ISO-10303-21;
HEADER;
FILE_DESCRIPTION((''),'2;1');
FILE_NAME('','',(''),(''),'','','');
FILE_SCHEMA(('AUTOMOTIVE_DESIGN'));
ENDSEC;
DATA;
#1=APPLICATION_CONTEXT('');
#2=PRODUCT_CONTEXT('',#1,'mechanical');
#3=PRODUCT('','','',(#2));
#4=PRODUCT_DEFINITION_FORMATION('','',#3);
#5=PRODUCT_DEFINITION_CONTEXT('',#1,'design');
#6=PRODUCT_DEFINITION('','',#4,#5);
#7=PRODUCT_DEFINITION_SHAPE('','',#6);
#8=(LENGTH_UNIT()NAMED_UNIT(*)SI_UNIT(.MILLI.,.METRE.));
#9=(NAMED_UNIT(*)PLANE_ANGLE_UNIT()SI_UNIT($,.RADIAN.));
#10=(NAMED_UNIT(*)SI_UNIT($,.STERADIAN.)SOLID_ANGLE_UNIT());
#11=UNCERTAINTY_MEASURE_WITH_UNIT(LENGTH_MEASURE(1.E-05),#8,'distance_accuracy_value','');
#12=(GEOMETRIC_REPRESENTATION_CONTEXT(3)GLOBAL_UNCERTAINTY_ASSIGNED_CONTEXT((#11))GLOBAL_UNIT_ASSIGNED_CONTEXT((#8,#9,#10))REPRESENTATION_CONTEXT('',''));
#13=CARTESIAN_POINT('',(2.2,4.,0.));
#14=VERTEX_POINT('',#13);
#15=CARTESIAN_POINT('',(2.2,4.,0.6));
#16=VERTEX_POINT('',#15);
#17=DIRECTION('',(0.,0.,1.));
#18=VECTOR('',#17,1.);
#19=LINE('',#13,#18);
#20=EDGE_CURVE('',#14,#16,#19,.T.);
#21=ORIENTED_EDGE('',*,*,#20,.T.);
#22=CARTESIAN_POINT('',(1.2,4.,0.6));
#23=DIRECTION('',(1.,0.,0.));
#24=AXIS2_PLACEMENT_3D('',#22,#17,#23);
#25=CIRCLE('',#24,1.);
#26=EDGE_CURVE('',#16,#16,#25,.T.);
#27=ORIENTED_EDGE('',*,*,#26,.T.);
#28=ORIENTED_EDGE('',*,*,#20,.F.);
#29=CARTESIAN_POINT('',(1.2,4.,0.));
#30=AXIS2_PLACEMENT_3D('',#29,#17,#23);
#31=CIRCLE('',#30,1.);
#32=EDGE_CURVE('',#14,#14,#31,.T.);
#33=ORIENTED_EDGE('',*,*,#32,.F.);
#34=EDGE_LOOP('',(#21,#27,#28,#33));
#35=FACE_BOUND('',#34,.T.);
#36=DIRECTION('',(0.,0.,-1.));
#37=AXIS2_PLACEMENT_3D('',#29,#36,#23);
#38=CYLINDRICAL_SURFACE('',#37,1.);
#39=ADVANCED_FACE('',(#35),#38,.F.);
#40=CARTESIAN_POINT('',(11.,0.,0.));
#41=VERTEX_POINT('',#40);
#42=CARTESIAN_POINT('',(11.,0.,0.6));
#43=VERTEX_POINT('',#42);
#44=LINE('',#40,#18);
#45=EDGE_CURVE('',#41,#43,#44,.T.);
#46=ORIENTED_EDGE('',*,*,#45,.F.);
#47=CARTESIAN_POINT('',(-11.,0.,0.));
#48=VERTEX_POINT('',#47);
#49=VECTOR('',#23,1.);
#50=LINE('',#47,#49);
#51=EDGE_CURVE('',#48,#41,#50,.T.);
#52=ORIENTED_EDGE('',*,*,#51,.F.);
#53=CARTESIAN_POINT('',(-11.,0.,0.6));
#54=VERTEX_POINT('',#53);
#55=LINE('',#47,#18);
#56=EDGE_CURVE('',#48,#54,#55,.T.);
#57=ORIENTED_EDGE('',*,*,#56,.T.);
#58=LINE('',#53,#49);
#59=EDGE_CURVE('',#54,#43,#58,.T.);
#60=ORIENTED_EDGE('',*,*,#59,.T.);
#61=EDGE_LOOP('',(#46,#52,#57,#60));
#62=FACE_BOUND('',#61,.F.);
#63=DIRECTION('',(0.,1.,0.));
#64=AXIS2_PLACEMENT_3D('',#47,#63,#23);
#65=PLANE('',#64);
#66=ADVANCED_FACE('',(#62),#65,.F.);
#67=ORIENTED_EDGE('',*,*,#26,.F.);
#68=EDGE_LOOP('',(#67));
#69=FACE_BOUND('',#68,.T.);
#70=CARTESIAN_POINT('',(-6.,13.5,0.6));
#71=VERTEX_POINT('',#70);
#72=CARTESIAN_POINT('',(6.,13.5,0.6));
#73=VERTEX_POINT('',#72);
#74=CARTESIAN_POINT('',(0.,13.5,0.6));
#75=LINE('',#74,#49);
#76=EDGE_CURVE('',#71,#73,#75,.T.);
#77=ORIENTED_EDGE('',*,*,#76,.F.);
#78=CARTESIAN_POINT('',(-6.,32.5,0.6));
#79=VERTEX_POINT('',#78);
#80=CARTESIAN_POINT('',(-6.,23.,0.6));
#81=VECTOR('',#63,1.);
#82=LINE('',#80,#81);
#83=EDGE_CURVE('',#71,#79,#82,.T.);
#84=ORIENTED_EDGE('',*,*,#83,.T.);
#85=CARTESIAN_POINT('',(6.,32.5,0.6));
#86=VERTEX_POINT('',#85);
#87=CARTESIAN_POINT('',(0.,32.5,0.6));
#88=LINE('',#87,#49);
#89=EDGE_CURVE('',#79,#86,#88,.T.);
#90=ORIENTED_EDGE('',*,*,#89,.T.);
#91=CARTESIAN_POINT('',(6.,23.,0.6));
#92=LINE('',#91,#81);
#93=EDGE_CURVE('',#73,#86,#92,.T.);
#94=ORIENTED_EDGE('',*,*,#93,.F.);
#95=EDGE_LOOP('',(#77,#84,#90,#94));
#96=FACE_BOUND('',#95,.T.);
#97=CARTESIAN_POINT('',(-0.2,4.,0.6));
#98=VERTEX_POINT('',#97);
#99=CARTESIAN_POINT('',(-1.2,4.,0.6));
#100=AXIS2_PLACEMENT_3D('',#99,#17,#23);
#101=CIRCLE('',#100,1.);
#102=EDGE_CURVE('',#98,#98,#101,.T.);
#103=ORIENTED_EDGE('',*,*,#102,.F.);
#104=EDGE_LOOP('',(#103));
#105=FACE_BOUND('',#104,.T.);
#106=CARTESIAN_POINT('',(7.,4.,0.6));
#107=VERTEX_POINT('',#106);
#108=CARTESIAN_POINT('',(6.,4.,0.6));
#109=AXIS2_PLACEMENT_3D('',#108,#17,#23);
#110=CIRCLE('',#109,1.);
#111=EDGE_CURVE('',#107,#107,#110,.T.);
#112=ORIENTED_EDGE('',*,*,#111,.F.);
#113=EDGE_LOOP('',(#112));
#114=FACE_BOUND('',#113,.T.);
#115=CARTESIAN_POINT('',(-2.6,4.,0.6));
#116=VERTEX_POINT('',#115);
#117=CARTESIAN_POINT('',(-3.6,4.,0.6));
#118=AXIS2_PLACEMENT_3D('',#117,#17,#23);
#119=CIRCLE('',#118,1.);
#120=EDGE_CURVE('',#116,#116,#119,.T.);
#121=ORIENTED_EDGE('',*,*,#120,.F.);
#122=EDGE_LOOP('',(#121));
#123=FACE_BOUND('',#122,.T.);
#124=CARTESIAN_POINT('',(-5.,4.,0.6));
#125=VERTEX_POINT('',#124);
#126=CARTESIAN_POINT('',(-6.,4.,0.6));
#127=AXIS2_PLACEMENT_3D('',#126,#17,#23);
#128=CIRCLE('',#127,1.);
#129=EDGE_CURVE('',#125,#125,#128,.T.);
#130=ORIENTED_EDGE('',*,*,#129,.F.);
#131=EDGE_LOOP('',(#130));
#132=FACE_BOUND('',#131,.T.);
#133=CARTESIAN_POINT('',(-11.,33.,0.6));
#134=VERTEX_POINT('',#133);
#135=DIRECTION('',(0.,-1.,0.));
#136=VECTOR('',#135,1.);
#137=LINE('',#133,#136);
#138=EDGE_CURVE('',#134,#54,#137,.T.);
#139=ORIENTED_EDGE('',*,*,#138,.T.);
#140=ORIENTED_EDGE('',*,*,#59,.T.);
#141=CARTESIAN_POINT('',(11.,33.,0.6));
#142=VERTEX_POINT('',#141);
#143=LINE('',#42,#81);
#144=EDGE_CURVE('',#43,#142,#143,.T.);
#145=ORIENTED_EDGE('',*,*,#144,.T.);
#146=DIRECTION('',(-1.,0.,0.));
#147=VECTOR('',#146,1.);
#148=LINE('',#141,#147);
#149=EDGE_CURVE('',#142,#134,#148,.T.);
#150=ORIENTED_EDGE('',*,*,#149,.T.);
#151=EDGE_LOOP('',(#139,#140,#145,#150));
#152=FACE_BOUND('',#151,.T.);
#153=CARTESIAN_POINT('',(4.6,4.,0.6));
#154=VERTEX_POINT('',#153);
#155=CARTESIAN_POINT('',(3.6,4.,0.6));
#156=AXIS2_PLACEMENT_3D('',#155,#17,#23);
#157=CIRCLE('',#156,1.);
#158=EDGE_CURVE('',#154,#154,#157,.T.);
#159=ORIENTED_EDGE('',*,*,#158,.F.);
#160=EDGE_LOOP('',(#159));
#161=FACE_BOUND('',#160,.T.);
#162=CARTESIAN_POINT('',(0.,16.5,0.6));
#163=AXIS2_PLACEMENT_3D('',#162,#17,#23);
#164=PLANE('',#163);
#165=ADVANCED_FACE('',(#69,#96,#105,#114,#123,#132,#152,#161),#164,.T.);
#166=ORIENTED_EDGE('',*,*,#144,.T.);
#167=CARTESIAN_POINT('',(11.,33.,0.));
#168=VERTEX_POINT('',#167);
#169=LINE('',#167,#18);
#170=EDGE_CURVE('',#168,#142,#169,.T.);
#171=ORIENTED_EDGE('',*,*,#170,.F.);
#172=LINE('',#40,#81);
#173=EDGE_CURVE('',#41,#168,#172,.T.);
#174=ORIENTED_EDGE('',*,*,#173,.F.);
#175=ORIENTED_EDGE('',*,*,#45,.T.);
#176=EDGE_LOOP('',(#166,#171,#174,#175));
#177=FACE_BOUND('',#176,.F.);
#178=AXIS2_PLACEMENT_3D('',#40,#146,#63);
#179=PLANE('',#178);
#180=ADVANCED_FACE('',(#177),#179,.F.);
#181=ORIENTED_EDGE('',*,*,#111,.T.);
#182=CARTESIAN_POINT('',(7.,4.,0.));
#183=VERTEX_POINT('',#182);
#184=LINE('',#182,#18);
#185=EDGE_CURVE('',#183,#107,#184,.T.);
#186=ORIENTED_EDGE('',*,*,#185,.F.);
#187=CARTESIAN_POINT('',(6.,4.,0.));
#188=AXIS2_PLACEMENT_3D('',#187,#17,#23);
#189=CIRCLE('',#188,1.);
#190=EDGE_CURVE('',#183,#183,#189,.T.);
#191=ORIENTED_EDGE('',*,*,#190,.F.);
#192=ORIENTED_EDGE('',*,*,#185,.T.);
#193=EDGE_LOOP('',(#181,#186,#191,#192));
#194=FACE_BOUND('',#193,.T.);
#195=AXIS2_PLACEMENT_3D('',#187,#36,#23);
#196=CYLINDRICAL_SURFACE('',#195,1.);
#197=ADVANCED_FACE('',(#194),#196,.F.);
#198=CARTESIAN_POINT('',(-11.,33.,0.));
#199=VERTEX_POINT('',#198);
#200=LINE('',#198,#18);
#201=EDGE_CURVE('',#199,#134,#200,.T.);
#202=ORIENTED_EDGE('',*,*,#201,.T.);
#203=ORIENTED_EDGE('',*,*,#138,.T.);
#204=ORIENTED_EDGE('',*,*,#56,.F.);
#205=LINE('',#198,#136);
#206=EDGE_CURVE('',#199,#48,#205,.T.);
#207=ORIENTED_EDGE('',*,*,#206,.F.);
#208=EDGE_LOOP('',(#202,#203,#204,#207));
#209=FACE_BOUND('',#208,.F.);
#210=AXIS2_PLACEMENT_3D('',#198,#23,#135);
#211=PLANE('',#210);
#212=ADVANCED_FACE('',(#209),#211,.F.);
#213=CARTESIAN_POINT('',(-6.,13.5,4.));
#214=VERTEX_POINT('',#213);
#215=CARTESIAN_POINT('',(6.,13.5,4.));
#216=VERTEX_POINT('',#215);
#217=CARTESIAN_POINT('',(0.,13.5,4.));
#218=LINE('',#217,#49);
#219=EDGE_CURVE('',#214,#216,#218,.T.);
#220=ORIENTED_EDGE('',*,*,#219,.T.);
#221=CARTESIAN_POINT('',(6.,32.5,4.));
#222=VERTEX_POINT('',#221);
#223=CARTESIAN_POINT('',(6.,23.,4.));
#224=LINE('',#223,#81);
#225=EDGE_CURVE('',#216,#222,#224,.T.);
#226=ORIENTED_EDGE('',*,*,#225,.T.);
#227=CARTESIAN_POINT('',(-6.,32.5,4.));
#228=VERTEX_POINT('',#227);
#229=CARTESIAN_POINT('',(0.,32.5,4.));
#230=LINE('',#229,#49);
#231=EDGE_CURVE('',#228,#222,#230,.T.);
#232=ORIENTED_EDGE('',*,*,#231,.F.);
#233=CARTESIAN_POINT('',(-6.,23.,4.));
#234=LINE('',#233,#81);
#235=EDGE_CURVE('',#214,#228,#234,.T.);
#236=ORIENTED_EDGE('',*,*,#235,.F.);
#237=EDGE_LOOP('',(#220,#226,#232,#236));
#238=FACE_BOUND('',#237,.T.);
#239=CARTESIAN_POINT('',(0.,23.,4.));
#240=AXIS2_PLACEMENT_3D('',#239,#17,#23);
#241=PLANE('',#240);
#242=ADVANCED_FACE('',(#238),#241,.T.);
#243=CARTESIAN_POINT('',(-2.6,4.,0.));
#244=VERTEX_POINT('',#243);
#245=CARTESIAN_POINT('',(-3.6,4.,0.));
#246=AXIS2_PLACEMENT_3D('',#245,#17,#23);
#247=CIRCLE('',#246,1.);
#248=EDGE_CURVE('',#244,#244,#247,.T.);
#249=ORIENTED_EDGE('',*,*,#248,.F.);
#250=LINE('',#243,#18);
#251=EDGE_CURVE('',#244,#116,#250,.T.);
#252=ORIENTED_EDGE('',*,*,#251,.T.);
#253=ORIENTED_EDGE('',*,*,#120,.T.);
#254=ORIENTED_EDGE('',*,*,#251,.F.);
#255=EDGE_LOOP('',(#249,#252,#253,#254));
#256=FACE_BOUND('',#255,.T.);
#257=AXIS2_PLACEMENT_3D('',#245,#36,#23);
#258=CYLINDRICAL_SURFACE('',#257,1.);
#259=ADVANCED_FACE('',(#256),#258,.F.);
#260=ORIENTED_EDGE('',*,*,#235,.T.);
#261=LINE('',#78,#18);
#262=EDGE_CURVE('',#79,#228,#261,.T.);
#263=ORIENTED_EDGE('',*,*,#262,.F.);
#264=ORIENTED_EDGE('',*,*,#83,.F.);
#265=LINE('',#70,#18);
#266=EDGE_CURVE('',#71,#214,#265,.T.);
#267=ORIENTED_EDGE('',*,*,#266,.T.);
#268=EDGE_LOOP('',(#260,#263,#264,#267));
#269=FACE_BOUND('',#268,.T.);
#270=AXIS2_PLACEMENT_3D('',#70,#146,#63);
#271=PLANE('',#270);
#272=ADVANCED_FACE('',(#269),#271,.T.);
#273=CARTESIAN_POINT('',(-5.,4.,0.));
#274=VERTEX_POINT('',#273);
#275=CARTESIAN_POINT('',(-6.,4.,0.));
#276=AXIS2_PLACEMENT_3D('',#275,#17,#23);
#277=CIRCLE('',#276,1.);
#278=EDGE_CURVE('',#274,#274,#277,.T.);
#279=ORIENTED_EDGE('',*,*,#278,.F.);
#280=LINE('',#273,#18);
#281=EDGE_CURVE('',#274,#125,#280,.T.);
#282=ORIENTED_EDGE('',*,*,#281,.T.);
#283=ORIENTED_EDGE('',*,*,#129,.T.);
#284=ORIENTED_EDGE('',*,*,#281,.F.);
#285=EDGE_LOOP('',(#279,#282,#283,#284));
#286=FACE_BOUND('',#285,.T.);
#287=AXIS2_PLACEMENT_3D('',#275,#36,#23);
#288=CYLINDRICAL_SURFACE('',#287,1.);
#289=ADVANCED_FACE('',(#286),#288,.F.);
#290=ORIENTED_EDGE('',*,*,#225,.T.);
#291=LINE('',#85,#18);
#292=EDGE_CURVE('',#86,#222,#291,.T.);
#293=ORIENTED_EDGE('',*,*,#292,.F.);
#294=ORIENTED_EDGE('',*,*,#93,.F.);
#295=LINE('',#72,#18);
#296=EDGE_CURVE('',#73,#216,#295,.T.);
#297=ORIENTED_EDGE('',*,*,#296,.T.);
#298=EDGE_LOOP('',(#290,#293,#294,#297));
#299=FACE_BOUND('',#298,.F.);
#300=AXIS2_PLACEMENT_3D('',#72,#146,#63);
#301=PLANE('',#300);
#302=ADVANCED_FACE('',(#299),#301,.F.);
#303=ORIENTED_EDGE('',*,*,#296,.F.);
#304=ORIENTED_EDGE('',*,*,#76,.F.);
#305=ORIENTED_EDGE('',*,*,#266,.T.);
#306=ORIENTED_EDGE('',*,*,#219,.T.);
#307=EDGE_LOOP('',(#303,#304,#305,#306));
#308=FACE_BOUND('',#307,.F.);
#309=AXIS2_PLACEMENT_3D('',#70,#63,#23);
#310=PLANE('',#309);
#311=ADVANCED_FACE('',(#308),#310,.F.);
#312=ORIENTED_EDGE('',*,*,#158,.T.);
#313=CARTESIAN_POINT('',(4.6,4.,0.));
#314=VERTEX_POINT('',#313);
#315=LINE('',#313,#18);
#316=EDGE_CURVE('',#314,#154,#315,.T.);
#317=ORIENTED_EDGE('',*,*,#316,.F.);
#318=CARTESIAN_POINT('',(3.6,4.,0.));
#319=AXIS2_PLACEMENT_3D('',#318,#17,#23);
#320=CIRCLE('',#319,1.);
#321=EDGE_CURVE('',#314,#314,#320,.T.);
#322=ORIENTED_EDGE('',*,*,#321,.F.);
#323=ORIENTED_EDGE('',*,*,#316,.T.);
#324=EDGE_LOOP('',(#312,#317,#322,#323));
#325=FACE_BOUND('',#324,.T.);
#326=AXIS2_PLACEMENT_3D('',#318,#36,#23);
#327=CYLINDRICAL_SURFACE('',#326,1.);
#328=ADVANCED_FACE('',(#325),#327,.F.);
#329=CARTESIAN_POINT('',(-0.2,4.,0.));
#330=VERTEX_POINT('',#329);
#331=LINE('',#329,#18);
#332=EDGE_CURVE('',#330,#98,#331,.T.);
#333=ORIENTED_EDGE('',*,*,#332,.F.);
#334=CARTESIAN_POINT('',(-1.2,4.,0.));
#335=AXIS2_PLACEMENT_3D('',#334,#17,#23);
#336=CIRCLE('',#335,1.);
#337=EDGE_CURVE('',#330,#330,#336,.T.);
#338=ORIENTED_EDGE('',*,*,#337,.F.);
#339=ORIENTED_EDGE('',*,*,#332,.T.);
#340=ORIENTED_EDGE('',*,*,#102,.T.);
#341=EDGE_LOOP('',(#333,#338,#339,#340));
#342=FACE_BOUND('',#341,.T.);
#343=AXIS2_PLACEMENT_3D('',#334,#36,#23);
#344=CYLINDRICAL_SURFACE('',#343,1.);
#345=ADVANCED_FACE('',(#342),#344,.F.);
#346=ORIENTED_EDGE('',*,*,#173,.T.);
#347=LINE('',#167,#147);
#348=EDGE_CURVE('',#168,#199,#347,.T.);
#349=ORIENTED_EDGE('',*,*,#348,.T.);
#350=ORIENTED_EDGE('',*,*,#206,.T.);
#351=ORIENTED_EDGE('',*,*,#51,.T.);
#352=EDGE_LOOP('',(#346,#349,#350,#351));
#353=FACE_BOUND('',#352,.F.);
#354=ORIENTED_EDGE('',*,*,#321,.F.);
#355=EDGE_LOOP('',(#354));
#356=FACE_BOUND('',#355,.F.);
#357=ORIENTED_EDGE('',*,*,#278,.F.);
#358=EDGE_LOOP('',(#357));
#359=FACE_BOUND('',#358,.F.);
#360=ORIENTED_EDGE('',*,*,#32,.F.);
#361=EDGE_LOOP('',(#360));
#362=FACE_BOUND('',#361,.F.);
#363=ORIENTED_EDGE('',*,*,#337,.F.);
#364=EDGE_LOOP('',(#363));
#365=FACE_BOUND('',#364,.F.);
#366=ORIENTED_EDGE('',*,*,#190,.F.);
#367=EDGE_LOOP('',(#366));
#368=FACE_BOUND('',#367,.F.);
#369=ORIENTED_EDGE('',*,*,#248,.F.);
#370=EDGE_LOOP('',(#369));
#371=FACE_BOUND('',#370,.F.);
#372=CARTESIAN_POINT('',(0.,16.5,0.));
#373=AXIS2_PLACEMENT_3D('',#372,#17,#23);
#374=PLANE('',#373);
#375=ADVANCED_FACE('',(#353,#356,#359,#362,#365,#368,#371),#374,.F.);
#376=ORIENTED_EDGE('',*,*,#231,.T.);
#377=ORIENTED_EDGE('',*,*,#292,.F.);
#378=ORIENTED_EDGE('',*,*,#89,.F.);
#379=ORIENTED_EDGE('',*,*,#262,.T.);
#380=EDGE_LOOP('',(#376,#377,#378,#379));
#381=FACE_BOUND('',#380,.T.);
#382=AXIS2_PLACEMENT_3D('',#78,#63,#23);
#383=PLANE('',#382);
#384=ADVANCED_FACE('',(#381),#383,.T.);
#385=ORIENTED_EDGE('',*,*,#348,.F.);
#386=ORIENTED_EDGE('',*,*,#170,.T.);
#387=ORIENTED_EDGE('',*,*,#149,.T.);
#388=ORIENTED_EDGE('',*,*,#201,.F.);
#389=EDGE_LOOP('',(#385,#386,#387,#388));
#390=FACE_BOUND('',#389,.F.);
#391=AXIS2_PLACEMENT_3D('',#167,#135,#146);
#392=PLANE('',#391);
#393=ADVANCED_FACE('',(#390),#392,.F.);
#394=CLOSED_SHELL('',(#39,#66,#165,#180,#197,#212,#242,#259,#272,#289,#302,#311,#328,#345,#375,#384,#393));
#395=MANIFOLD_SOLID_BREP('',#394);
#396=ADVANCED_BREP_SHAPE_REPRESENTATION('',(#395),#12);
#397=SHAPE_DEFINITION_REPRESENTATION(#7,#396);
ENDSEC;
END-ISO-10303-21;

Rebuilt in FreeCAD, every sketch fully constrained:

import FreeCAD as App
import Part
import Sketcher
from FreeCAD import Vector
Q = App.Units.Quantity


def add_polygon(sketch, points):
    """Adds a closed chain of lines whose ends are joined by coincident constraints."""
    first, n = sketch.GeometryCount, len(points)
    for a, b in zip(points, points[1:] + points[:1]):
        sketch.addGeometry(Part.LineSegment(App.Vector(*a, 0), App.Vector(*b, 0)), False)
    for i in range(n):
        sketch.addConstraint(Sketcher.Constraint("Coincident", first + i, 2, first + (i + 1) % n, 1))

doc = App.newDocument("Part")
body = doc.addObject("PartDesign::Body", "Body")

sketch1 = body.newObject("Sketcher::SketchObject", "Sketch")
sketch1.AttachmentSupport = (doc.getObject("XY_Plane"), [""])
sketch1.MapMode = "FlatFace"
add_polygon(sketch1, [(-11, 0), (11, 0), (11, 33), (-11, 33)])
sketch1.addGeometry(Part.Circle(Vector(-6, 4, 0), Vector(0, 0, 1), 1), False)
sketch1.addGeometry(Part.Circle(Vector(-3.6, 4, 0), Vector(0, 0, 1), 1), False)
sketch1.addGeometry(Part.Circle(Vector(-1.2, 4, 0), Vector(0, 0, 1), 1), False)
sketch1.addGeometry(Part.Circle(Vector(1.2, 4, 0), Vector(0, 0, 1), 1), False)
sketch1.addGeometry(Part.Circle(Vector(3.6, 4, 0), Vector(0, 0, 1), 1), False)
sketch1.addGeometry(Part.Circle(Vector(6, 4, 0), Vector(0, 0, 1), 1), False)
sketch1.addConstraint(Sketcher.Constraint("Horizontal", 0))
sketch1.addConstraint(Sketcher.Constraint("Vertical", 1))
sketch1.addConstraint(Sketcher.Constraint("Horizontal", 2))
sketch1.addConstraint(Sketcher.Constraint("Vertical", 3))
sketch1.addConstraint(Sketcher.Constraint("Equal", 4, 5))
sketch1.addConstraint(Sketcher.Constraint("Equal", 5, 6))
sketch1.addConstraint(Sketcher.Constraint("Equal", 6, 7))
sketch1.addConstraint(Sketcher.Constraint("Equal", 7, 8))
sketch1.addConstraint(Sketcher.Constraint("Equal", 8, 9))
sketch1.addConstraint(Sketcher.Constraint("Symmetric", 0, 2, 3, 2, -1, 1))
sketch1.addConstraint(Sketcher.Constraint("Symmetric", 6, 3, 7, 3, -2))
sketch1.addConstraint(Sketcher.Constraint("Symmetric", 5, 3, 8, 3, -2))
sketch1.addConstraint(Sketcher.Constraint("Symmetric", 4, 3, 9, 3, -2))
sketch1.addConstraint(Sketcher.Constraint("Horizontal", 4, 3, 5, 3))
sketch1.addConstraint(Sketcher.Constraint("Horizontal", 5, 3, 6, 3))
sketch1.addConstraint(Sketcher.Constraint("Diameter", 4, Q("2 mm")))
sketch1.addConstraint(Sketcher.Constraint("DistanceX", 0, 1, 0, 2, Q("22 mm")))
sketch1.addConstraint(Sketcher.Constraint("DistanceY", 1, 1, 1, 2, Q("33 mm")))
sketch1.addConstraint(Sketcher.Constraint("DistanceX", 4, 3, -1, 1, Q("6 mm")))
sketch1.addConstraint(Sketcher.Constraint("DistanceY", -1, 1, 4, 3, Q("4 mm")))
sketch1.addConstraint(Sketcher.Constraint("DistanceX", 5, 3, -1, 1, Q("3.6 mm")))
sketch1.addConstraint(Sketcher.Constraint("DistanceX", 6, 3, -1, 1, Q("1.2 mm")))
pad1 = body.newObject("PartDesign::Pad", "Pad")
pad1.Profile = sketch1
pad1.Length = 0.6

sketch2 = body.newObject("Sketcher::SketchObject", "Sketch001")
sketch2.AttachmentSupport = (doc.getObject("XY_Plane"), [""])
sketch2.MapMode = "FlatFace"
sketch2.AttachmentOffset = App.Placement(Vector(0, 0, 0.6), App.Rotation())
add_polygon(sketch2, [(-6, 32), (-6, 14), (6, 14), (6, 32)])
sketch2.addConstraint(Sketcher.Constraint("Vertical", 0))
sketch2.addConstraint(Sketcher.Constraint("Horizontal", 1))
sketch2.addConstraint(Sketcher.Constraint("Vertical", 2))
sketch2.addConstraint(Sketcher.Constraint("Horizontal", 3))
sketch2.addConstraint(Sketcher.Constraint("DistanceX", 1, 1, 1, 2, Q("12 mm")))
sketch2.addConstraint(Sketcher.Constraint("DistanceY", 0, 2, 0, 1, Q("19 mm")))
sketch2.addConstraint(Sketcher.Constraint("DistanceX", 0, 2, -1, 1, Q("6 mm")))
sketch2.addConstraint(Sketcher.Constraint("DistanceY", -1, 1, 0, 2, Q("13.5 mm")))
pad2 = body.newObject("PartDesign::Pad", "Pad001")
pad2.Profile = sketch2
pad2.Length = 3.4

doc.recompute()
